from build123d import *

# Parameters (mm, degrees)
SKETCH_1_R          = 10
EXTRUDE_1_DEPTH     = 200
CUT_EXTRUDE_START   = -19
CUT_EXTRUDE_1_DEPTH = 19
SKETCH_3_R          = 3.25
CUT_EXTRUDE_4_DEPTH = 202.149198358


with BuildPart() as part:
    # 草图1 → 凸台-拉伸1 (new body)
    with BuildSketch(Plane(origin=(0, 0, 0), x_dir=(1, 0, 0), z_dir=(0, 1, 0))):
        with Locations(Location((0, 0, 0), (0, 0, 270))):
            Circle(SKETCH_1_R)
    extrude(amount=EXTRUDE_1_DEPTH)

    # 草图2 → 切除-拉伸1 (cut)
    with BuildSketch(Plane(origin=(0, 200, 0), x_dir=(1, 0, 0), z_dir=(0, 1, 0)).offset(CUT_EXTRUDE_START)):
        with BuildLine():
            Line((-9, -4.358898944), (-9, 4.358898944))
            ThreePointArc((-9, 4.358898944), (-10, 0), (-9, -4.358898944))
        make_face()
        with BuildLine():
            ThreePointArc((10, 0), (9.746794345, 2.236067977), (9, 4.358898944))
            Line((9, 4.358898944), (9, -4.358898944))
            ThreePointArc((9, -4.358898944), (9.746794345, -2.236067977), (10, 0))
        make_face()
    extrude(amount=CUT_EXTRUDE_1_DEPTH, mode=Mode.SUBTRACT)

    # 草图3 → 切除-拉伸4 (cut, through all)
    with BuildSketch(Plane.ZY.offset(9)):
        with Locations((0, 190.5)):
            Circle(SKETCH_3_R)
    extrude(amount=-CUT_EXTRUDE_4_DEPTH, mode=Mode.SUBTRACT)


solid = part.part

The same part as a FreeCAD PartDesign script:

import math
import FreeCAD as App
import Part
import Sketcher

V = App.Vector
Q = App.Units.Quantity

doc = App.newDocument("Part")
body = doc.addObject("PartDesign::Body", "Body")

sketch1 = body.newObject("Sketcher::SketchObject", "Sketch")
sketch1.AttachmentSupport = (doc.getObject("XZ_Plane"), [""])
sketch1.MapMode = "FlatFace"
sketch1.addGeometry(Part.Circle(V(0, 0, 0), V(0, 0, 1), 10), False)
sketch1.addConstraint(Sketcher.Constraint("Coincident", 0, 3, -1, 1))
sketch1.addConstraint(Sketcher.Constraint("Diameter", 0, Q("20 mm")))
pad1 = body.newObject("PartDesign::Pad", "Pad")
pad1.Profile = sketch1
pad1.Length = 200
pad1.Reversed = True

sketch2 = body.newObject("Sketcher::SketchObject", "Sketch001")
sketch2.AttachmentSupport = (doc.getObject("XZ_Plane"), [""])
sketch2.MapMode = "FlatFace"
sketch2.AttachmentOffset = App.Placement(V(0, 0, -181), App.Rotation())
sketch2.addGeometry(Part.LineSegment(V(-9, 4.358899, 0), V(-9, -4.358899, 0)), False)
sketch2.addGeometry(Part.ArcOfCircle(Part.Circle(V(0, 0, 0), V(0, 0, 1), 10), math.radians(154.158067), math.radians(205.841933)), False)
sketch2.addGeometry(Part.ArcOfCircle(Part.Circle(V(0, 0, 0), V(0, 0, 1), 10), math.radians(-25.841933), math.radians(0)), False)
sketch2.addGeometry(Part.LineSegment(V(9, -4.358899, 0), V(9, 4.358899, 0)), False)
sketch2.addGeometry(Part.ArcOfCircle(Part.Circle(V(0, 0, 0), V(0, 0, 1), 10), math.radians(0), math.radians(25.841933)), False)
sketch2.addConstraint(Sketcher.Constraint("Coincident", 0, 1, 1, 1))
sketch2.addConstraint(Sketcher.Constraint("Coincident", 1, 2, 0, 2))
sketch2.addConstraint(Sketcher.Constraint("Coincident", 2, 1, 3, 1))
sketch2.addConstraint(Sketcher.Constraint("Coincident", 3, 2, 4, 2))
sketch2.addConstraint(Sketcher.Constraint("Tangent", 4, 1, 2, 2))
sketch2.addConstraint(Sketcher.Constraint("Vertical", 0))
sketch2.addConstraint(Sketcher.Constraint("Vertical", 3))
sketch2.addConstraint(Sketcher.Constraint("Coincident", 1, 3, -1, 1))
sketch2.addConstraint(Sketcher.Constraint("Coincident", 2, 3, -1, 1))
sketch2.addConstraint(Sketcher.Constraint("Equal", 1, 2))
sketch2.addConstraint(Sketcher.Constraint("Equal", 2, 4))
sketch2.addConstraint(Sketcher.Constraint("PointOnObject", 4, 1, -1))
sketch2.addConstraint(Sketcher.Constraint("Horizontal", 1, 2, 2, 1))
sketch2.addConstraint(Sketcher.Constraint("Radius", 1, Q("10 mm")))
sketch2.addConstraint(Sketcher.Constraint("DistanceX", 0, 1, -1, 1, Q("9 mm")))
pocket1 = body.newObject("PartDesign::Pocket", "Pocket")
pocket1.Profile = sketch2
pocket1.Length = 19

sketch3 = body.newObject("Sketcher::SketchObject", "Sketch002")
sketch3.AttachmentSupport = (doc.getObject("YZ_Plane"), [""])
sketch3.MapMode = "FlatFace"
sketch3.AttachmentOffset = App.Placement(V(0, 0, -9), App.Rotation())
sketch3.addGeometry(Part.Circle(V(190.5, 0, 0), V(0, 0, 1), 3.25), False)
sketch3.addConstraint(Sketcher.Constraint("PointOnObject", 0, 3, -1))
sketch3.addConstraint(Sketcher.Constraint("Diameter", 0, Q("6.5 mm")))
sketch3.addConstraint(Sketcher.Constraint("DistanceX", -1, 1, 0, 3, Q("190.5 mm")))
pocket2 = body.newObject("PartDesign::Pocket", "Pocket001")
pocket2.Profile = sketch3
pocket2.Type = "ThroughAll"
pocket2.Reversed = True

doc.recompute()
